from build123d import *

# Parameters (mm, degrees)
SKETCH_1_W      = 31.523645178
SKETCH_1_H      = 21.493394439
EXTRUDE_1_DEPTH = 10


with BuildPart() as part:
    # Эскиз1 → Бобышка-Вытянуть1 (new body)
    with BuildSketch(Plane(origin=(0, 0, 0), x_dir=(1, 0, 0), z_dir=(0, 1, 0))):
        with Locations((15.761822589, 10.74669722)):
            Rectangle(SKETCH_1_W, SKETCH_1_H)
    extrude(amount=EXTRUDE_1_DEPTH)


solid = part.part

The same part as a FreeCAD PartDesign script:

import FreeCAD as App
import Part
import Sketcher


def add_polygon(sketch, points):
    """Adds a closed chain of lines whose ends are joined by coincident constraints."""
    first, n = sketch.GeometryCount, len(points)
    for a, b in zip(points, points[1:] + points[:1]):
        sketch.addGeometry(Part.LineSegment(App.Vector(*a, 0), App.Vector(*b, 0)), False)
    for i in range(n):
        sketch.addConstraint(Sketcher.Constraint("Coincident", first + i, 2, first + (i + 1) % n, 1))

doc = App.newDocument("Part")
params = doc.addObject("Spreadsheet::Sheet", "Params")
for row, (alias, value) in enumerate([
    ("pad1_length", "10 mm"),
], start=1):
    params.set(f"A{row}", alias)
    params.set(f"B{row}", "=" + value)
    params.setAlias(f"B{row}", alias)

body = doc.addObject("PartDesign::Body", "Body")

# Sketch on XZ plane
sketch1 = doc.addObject("Sketcher::SketchObject", "Sketch")
body.addObject(sketch1)
sketch1.AttachmentSupport = (doc.XZ_Plane, [""])
sketch1.MapMode = "FlatFace"
add_polygon(sketch1, [(0, -21), (0, 0), (32, 0), (32, -21)])  # lines 0-3
sketch1.addConstraint([
    Sketcher.Constraint("Vertical", 0),
    Sketcher.Constraint("Horizontal", 1),
    Sketcher.Constraint("Vertical", 2),
    Sketcher.Constraint("Horizontal", 3),
    Sketcher.Constraint("Coincident", 0, 2, -1, 1),
    Sketcher.Constraint("DistanceX", 1, 1, 1, 2, 31.523645),
    Sketcher.Constraint("DistanceY", 0, 1, 0, 2, 21.493394),
])
pad1 = doc.addObject("PartDesign::Pad", "Pad")
body.addObject(pad1)
pad1.Profile = sketch1
pad1.setExpression("Length", "Params.pad1_length")
pad1.Reversed = True

doc.recompute()
